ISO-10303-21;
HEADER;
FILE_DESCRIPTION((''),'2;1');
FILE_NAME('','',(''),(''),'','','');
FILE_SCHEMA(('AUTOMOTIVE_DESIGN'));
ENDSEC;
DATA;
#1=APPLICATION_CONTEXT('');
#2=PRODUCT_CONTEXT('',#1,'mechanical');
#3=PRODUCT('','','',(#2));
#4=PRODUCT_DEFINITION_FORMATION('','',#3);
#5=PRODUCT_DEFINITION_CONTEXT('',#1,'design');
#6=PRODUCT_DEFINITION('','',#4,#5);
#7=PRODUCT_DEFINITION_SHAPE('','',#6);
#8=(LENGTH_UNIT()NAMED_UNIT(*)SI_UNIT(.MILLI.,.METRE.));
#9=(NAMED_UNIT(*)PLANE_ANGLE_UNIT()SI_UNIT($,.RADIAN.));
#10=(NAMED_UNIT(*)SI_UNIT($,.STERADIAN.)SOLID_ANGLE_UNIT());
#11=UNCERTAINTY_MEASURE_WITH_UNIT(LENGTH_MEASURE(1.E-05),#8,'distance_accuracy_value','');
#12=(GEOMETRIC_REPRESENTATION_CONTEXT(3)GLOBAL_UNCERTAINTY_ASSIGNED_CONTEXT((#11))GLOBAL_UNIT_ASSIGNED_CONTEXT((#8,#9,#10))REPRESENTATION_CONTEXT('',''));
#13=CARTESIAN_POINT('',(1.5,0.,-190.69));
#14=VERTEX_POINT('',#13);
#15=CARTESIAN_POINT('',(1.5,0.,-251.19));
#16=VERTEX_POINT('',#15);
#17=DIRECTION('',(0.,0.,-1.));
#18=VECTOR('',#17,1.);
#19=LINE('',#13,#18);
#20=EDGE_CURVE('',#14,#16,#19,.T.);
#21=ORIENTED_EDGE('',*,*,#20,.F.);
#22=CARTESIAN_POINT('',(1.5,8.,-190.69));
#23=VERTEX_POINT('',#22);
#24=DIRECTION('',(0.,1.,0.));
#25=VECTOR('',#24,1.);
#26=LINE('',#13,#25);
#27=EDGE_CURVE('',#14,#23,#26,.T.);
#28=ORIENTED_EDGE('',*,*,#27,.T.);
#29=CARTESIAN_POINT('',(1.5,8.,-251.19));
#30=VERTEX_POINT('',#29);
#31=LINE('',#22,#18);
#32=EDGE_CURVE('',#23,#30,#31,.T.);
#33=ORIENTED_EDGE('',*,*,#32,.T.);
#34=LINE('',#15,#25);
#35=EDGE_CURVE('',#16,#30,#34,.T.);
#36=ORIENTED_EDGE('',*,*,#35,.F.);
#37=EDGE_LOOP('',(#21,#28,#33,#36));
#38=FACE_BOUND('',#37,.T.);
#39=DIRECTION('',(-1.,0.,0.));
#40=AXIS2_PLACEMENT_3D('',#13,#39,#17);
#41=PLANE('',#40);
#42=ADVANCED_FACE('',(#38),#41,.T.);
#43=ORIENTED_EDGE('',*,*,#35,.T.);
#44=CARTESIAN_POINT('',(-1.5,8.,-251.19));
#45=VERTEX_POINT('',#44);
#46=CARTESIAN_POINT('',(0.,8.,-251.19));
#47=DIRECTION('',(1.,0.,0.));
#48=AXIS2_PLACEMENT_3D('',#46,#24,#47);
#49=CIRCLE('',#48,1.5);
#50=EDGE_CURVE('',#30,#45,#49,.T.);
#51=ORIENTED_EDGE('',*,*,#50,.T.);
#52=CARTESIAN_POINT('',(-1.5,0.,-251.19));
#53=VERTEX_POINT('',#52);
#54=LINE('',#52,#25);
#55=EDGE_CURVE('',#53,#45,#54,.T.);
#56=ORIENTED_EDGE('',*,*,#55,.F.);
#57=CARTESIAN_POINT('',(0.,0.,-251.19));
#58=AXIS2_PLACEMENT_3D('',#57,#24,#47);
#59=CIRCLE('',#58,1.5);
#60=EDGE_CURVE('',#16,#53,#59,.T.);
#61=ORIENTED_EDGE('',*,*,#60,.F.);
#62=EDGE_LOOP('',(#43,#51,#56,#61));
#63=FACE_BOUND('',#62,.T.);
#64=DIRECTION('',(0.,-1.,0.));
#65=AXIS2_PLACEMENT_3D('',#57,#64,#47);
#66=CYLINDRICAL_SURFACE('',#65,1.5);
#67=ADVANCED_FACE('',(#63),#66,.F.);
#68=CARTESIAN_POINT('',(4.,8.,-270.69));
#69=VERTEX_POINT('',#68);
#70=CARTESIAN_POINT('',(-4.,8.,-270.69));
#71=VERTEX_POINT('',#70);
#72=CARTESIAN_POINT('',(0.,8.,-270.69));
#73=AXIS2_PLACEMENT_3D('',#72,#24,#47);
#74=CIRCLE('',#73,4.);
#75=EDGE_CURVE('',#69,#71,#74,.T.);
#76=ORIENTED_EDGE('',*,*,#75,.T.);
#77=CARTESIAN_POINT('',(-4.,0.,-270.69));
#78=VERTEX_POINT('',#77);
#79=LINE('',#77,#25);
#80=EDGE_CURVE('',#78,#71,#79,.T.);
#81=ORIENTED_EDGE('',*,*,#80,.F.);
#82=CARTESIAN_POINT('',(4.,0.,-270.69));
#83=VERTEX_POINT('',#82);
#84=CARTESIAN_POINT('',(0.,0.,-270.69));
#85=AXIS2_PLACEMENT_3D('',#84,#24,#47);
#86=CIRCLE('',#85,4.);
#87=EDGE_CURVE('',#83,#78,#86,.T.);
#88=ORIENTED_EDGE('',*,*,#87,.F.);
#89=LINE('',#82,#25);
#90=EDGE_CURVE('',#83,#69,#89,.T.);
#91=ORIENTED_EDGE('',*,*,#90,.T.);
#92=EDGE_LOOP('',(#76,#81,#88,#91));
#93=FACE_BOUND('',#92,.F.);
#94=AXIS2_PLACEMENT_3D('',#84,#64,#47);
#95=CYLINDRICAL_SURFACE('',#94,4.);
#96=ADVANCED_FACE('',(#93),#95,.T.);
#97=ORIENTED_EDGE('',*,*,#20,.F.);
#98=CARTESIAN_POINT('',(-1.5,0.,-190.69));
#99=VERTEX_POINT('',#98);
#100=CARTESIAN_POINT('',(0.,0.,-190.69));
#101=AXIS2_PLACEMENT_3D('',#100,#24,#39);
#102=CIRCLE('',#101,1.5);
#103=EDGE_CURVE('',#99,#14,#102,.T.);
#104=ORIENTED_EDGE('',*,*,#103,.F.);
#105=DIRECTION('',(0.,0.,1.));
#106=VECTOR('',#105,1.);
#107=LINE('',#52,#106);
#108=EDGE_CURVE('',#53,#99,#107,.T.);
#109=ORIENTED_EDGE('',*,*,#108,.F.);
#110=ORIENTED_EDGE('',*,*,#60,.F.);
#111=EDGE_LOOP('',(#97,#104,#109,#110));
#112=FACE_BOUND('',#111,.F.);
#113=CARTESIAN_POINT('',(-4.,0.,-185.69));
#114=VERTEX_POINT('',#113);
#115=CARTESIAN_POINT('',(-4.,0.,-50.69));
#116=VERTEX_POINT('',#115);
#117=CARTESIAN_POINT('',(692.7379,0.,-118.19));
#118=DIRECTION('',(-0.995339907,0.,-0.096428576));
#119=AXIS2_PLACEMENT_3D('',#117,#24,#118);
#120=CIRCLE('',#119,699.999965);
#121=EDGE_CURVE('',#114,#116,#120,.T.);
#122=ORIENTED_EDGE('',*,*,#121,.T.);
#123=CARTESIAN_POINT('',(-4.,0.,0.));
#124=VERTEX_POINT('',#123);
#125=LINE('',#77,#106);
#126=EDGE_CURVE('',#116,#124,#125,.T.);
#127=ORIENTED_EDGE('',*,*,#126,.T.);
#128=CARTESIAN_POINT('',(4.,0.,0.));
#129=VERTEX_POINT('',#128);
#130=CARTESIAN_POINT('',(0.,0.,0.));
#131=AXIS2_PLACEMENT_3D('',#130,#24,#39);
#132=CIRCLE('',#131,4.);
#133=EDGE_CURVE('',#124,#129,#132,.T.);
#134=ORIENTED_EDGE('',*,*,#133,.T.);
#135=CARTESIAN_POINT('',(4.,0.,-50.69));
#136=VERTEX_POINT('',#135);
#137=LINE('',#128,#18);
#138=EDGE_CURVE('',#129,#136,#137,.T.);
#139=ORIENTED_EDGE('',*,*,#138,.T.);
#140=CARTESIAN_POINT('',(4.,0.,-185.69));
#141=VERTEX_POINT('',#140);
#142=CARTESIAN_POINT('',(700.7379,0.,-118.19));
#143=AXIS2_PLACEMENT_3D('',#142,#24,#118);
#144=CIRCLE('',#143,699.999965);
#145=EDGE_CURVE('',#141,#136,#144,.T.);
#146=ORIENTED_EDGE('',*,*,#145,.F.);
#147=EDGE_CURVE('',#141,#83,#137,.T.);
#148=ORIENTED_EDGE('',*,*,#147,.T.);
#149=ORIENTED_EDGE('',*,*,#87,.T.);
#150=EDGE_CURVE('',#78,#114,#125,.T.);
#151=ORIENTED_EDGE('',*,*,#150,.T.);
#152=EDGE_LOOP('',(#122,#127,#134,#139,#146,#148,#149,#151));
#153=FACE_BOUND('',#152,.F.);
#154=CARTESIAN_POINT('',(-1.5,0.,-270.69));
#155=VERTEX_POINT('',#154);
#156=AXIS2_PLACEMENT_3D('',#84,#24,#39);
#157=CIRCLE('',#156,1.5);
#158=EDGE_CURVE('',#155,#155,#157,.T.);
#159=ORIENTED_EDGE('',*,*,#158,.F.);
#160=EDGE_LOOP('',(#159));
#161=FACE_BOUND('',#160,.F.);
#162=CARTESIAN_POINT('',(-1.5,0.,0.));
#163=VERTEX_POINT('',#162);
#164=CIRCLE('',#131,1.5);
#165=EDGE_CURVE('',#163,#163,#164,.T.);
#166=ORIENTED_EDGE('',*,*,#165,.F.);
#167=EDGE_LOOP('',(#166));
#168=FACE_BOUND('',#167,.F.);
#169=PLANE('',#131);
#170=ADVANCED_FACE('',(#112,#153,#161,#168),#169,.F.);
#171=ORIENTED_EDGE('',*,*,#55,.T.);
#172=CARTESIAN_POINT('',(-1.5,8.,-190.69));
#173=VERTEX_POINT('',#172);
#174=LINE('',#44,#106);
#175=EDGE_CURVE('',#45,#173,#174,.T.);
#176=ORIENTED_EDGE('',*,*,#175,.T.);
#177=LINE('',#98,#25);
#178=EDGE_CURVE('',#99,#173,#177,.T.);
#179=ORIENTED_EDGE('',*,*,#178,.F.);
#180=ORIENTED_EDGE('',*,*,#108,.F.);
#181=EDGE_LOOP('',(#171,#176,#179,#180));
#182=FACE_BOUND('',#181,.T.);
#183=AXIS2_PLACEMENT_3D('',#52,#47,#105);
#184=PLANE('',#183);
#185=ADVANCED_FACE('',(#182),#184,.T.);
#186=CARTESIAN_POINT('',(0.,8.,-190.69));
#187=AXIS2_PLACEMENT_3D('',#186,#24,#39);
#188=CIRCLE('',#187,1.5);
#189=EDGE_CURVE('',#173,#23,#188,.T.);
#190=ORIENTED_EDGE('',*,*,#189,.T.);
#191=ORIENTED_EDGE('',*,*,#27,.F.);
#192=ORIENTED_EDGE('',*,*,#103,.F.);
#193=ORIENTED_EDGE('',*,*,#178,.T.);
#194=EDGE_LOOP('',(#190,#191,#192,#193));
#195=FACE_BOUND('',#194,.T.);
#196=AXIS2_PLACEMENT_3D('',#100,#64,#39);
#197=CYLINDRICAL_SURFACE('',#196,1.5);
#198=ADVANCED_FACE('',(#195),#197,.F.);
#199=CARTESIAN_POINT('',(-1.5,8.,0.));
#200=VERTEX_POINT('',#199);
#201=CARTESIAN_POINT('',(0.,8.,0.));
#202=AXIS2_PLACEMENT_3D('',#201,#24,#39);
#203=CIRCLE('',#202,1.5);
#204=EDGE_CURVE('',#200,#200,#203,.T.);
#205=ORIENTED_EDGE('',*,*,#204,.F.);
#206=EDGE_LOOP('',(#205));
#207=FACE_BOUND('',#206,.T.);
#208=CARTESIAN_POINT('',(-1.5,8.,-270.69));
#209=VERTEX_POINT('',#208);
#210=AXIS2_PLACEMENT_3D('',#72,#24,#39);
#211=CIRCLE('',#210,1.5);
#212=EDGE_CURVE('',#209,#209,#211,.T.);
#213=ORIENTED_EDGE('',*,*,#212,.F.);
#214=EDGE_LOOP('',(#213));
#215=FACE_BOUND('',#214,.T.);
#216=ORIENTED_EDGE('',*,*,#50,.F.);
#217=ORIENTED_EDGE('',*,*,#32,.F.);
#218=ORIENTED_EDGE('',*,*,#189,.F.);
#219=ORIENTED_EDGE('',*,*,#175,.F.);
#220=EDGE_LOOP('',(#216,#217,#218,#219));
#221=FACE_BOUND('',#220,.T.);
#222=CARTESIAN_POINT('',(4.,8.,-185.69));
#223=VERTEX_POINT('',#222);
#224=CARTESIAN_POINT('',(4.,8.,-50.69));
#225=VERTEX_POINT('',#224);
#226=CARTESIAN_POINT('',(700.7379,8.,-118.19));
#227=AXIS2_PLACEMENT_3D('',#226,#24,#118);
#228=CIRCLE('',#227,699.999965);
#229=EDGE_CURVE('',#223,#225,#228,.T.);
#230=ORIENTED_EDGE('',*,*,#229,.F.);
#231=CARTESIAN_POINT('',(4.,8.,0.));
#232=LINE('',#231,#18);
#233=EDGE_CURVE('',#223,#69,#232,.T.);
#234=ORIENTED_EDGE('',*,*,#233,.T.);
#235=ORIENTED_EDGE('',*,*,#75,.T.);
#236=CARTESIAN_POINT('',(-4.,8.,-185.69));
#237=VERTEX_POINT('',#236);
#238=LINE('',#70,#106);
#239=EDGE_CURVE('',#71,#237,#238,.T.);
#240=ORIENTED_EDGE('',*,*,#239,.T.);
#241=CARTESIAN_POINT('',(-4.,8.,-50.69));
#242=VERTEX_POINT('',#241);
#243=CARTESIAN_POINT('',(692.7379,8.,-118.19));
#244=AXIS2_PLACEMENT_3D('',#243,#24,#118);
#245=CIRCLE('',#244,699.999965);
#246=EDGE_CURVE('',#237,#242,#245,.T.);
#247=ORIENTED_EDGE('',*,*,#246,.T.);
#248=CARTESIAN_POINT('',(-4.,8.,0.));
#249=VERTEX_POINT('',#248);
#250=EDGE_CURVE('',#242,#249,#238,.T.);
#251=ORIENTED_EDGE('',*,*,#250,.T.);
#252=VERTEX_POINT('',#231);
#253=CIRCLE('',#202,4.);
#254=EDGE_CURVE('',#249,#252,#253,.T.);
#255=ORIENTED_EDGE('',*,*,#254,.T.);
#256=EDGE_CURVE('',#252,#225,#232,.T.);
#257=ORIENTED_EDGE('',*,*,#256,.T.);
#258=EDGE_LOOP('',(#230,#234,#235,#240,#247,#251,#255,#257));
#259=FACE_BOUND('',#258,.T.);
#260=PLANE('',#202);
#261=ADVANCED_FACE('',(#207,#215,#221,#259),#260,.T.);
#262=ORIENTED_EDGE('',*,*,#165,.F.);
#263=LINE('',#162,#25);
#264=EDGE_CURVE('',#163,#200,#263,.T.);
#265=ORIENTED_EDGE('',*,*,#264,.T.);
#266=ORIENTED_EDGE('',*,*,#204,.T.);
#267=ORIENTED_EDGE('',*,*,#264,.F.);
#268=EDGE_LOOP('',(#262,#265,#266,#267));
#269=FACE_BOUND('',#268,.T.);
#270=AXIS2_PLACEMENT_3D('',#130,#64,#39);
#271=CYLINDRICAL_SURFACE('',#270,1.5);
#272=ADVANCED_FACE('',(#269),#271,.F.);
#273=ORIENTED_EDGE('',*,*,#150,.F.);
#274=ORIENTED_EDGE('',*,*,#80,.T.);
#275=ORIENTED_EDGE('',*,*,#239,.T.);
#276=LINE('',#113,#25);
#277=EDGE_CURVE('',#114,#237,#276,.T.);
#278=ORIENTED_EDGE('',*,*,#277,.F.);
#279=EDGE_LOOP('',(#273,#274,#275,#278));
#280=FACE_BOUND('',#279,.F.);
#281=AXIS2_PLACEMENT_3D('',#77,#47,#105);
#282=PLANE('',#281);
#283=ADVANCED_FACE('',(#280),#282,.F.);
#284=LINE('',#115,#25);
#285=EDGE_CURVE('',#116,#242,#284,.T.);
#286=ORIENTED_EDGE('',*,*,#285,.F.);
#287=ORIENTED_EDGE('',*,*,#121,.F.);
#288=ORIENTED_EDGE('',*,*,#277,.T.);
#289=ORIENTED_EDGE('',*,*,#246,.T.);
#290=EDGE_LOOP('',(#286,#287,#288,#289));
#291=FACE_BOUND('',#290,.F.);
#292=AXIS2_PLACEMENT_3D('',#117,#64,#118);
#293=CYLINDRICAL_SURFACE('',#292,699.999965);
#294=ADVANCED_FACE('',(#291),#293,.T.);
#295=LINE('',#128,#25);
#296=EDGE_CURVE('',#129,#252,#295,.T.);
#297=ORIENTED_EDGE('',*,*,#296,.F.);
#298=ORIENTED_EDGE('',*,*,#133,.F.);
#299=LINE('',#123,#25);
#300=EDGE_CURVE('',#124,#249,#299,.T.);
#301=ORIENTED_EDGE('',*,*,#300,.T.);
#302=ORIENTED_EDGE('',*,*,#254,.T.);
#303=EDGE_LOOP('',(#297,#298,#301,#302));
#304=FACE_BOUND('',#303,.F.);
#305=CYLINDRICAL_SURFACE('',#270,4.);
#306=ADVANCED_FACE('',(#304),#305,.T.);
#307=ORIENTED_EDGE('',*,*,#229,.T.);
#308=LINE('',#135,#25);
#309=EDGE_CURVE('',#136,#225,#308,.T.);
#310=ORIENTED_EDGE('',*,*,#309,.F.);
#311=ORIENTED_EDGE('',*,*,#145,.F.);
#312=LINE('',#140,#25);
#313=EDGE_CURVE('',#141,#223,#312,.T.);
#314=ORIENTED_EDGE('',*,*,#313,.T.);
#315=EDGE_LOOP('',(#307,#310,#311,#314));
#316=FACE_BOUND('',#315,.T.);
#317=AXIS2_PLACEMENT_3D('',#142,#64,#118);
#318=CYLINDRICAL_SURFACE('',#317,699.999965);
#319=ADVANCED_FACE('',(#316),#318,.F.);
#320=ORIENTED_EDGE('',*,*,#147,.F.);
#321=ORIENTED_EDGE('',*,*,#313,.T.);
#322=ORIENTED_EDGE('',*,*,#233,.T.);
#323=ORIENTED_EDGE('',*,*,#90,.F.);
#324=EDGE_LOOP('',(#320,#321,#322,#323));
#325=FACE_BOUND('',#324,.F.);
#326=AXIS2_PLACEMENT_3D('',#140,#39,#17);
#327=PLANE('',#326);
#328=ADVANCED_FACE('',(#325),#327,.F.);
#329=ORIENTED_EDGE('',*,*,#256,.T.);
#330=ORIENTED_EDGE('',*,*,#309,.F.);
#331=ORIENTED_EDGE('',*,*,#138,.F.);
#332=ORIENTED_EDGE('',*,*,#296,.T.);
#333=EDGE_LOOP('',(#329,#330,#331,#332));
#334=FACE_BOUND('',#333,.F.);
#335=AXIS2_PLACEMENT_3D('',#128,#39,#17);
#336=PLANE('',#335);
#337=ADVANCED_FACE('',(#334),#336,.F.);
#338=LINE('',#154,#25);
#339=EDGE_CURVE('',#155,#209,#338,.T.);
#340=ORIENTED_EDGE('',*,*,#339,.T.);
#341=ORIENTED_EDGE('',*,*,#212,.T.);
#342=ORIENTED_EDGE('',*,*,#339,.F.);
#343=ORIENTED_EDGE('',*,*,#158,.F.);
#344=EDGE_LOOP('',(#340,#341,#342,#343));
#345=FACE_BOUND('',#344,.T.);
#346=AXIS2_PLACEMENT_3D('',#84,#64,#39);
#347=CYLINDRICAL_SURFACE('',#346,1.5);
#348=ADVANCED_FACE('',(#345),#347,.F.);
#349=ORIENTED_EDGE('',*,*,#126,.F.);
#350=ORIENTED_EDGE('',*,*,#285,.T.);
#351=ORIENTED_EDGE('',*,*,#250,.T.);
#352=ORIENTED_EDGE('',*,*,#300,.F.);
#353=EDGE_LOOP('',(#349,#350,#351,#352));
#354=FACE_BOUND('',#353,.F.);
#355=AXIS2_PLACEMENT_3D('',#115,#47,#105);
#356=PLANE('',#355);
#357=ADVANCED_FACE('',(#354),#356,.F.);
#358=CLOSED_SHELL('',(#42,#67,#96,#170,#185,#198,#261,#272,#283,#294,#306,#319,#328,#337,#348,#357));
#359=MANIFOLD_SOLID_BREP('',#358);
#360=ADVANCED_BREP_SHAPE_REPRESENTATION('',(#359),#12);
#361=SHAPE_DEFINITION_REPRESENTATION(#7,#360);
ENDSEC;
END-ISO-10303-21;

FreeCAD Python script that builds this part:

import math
import FreeCAD as App
import Part
import Sketcher
Q = App.Units.Quantity

doc = App.newDocument("Part")
body = doc.addObject("PartDesign::Body", "Body")

# Sketch on XZ plane
sketch1 = body.newObject("Sketcher::SketchObject", "Sketch")
sketch1.AttachmentSupport = (doc.getObject("XZ_Plane"), [""])
sketch1.MapMode = "FlatFace"
sketch1.addGeometry(Part.ArcOfCircle(Part.Circle(App.Vector(0, 0, 0), App.Vector(0, 0, 1), 4), math.radians(0), math.radians(180)), False)
sketch1.addGeometry(Part.LineSegment(App.Vector(4, 0, 0), App.Vector(4, -50.7, 0)), False)
sketch1.addGeometry(Part.ArcOfCircle(Part.Circle(App.Vector(700.7, -118.2, 0), App.Vector(0, 0, 1), 700), math.radians(174.47), math.radians(185.53)), False)
sketch1.addGeometry(Part.LineSegment(App.Vector(4, -185.7, 0), App.Vector(4, -270.7, 0)), False)
sketch1.addGeometry(Part.ArcOfCircle(Part.Circle(App.Vector(0, -270.7, 0), App.Vector(0, 0, 1), 4), math.radians(180), math.radians(360)), False)
sketch1.addGeometry(Part.LineSegment(App.Vector(-4, -270.7, 0), App.Vector(-4, -185.7, 0)), False)
sketch1.addGeometry(Part.ArcOfCircle(Part.Circle(App.Vector(692.7, -118.2, 0), App.Vector(0, 0, 1), 700), math.radians(174.47), math.radians(185.53)), False)
sketch1.addGeometry(Part.LineSegment(App.Vector(-4, -50.7, 0), App.Vector(-4, 0, 0)), False)
sketch1.addGeometry(Part.Circle(App.Vector(0, -270.7, 0), App.Vector(0, 0, 1), 1.5), False)
sketch1.addGeometry(Part.LineSegment(App.Vector(-1.5, -190.7, 0), App.Vector(-1.5, -251.2, 0)), False)
sketch1.addGeometry(Part.ArcOfCircle(Part.Circle(App.Vector(0, -251.2, 0), App.Vector(0, 0, 1), 1.5), math.radians(180), math.radians(360)), False)
sketch1.addGeometry(Part.LineSegment(App.Vector(1.5, -251.2, 0), App.Vector(1.5, -190.7, 0)), False)
sketch1.addGeometry(Part.ArcOfCircle(Part.Circle(App.Vector(0, -190.7, 0), App.Vector(0, 0, 1), 1.5), math.radians(0), math.radians(180)), False)
sketch1.addGeometry(Part.Circle(App.Vector(0, 0, 0), App.Vector(0, 0, 1), 1.5), False)
sketch1.addConstraint(Sketcher.Constraint("Tangent", 0, 1, 1, 1))
sketch1.addConstraint(Sketcher.Constraint("Coincident", 1, 2, 2, 1))
sketch1.addConstraint(Sketcher.Constraint("Coincident", 2, 2, 3, 1))
sketch1.addConstraint(Sketcher.Constraint("Tangent", 3, 2, 4, 2))
sketch1.addConstraint(Sketcher.Constraint("Tangent", 4, 1, 5, 1))
sketch1.addConstraint(Sketcher.Constraint("Coincident", 5, 2, 6, 2))
sketch1.addConstraint(Sketcher.Constraint("Coincident", 6, 1, 7, 1))
sketch1.addConstraint(Sketcher.Constraint("Tangent", 7, 2, 0, 2))
sketch1.addConstraint(Sketcher.Constraint("Tangent", 9, 2, 10, 1))
sketch1.addConstraint(Sketcher.Constraint("Tangent", 10, 2, 11, 1))
sketch1.addConstraint(Sketcher.Constraint("Tangent", 11, 2, 12, 1))
sketch1.addConstraint(Sketcher.Constraint("Tangent", 12, 2, 9, 1))
sketch1.addConstraint(Sketcher.Constraint("Vertical", 1))
sketch1.addConstraint(Sketcher.Constraint("Vertical", 3))
sketch1.addConstraint(Sketcher.Constraint("Vertical", 5))
sketch1.addConstraint(Sketcher.Constraint("Vertical", 7))
sketch1.addConstraint(Sketcher.Constraint("Vertical", 9))
sketch1.addConstraint(Sketcher.Constraint("Vertical", 11))
sketch1.addConstraint(Sketcher.Constraint("Coincident", 0, 3, -1, 1))
sketch1.addConstraint(Sketcher.Constraint("Coincident", 13, 3, -1, 1))
sketch1.addConstraint(Sketcher.Constraint("Coincident", 8, 3, 4, 3))
sketch1.addConstraint(Sketcher.Constraint("Equal", 0, 4))
sketch1.addConstraint(Sketcher.Constraint("Equal", 2, 6))
sketch1.addConstraint(Sketcher.Constraint("Equal", 8, 10))
sketch1.addConstraint(Sketcher.Constraint("Equal", 12, 13))
sketch1.addConstraint(Sketcher.Constraint("PointOnObject", 4, 3, -2))
sketch1.addConstraint(Sketcher.Constraint("PointOnObject", 10, 3, -2))
sketch1.addConstraint(Sketcher.Constraint("Horizontal", 2, 3, 6, 3))
sketch1.addConstraint(Sketcher.Constraint("Equal", 3, 5))
sketch1.addConstraint(Sketcher.Constraint("Diameter", 8, Q("3 mm")))
sketch1.addConstraint(Sketcher.Constraint("Radius", 0, Q("4 mm")))
sketch1.addConstraint(Sketcher.Constraint("Radius", 2, Q("700 mm")))
sketch1.addConstraint(Sketcher.Constraint("DistanceY", 3, 2, 3, 1, Q("85 mm")))
sketch1.addConstraint(Sketcher.Constraint("DistanceY", 4, 3, 12, 3, Q("80 mm")))
sketch1.addConstraint(Sketcher.Constraint("DistanceY", 4, 3, 10, 3, Q("19.5 mm")))
sketch1.addConstraint(Sketcher.Constraint("DistanceY", 4, 3, -1, 1, Q("270.69 mm")))
sketch1.addConstraint(Sketcher.Constraint("DistanceY", 10, 3, 6, 3, Q("133 mm")))
pad1 = body.newObject("PartDesign::Pad", "Pad")
pad1.Profile = sketch1
pad1.Length = 8
pad1.Reversed = True

doc.recompute()
